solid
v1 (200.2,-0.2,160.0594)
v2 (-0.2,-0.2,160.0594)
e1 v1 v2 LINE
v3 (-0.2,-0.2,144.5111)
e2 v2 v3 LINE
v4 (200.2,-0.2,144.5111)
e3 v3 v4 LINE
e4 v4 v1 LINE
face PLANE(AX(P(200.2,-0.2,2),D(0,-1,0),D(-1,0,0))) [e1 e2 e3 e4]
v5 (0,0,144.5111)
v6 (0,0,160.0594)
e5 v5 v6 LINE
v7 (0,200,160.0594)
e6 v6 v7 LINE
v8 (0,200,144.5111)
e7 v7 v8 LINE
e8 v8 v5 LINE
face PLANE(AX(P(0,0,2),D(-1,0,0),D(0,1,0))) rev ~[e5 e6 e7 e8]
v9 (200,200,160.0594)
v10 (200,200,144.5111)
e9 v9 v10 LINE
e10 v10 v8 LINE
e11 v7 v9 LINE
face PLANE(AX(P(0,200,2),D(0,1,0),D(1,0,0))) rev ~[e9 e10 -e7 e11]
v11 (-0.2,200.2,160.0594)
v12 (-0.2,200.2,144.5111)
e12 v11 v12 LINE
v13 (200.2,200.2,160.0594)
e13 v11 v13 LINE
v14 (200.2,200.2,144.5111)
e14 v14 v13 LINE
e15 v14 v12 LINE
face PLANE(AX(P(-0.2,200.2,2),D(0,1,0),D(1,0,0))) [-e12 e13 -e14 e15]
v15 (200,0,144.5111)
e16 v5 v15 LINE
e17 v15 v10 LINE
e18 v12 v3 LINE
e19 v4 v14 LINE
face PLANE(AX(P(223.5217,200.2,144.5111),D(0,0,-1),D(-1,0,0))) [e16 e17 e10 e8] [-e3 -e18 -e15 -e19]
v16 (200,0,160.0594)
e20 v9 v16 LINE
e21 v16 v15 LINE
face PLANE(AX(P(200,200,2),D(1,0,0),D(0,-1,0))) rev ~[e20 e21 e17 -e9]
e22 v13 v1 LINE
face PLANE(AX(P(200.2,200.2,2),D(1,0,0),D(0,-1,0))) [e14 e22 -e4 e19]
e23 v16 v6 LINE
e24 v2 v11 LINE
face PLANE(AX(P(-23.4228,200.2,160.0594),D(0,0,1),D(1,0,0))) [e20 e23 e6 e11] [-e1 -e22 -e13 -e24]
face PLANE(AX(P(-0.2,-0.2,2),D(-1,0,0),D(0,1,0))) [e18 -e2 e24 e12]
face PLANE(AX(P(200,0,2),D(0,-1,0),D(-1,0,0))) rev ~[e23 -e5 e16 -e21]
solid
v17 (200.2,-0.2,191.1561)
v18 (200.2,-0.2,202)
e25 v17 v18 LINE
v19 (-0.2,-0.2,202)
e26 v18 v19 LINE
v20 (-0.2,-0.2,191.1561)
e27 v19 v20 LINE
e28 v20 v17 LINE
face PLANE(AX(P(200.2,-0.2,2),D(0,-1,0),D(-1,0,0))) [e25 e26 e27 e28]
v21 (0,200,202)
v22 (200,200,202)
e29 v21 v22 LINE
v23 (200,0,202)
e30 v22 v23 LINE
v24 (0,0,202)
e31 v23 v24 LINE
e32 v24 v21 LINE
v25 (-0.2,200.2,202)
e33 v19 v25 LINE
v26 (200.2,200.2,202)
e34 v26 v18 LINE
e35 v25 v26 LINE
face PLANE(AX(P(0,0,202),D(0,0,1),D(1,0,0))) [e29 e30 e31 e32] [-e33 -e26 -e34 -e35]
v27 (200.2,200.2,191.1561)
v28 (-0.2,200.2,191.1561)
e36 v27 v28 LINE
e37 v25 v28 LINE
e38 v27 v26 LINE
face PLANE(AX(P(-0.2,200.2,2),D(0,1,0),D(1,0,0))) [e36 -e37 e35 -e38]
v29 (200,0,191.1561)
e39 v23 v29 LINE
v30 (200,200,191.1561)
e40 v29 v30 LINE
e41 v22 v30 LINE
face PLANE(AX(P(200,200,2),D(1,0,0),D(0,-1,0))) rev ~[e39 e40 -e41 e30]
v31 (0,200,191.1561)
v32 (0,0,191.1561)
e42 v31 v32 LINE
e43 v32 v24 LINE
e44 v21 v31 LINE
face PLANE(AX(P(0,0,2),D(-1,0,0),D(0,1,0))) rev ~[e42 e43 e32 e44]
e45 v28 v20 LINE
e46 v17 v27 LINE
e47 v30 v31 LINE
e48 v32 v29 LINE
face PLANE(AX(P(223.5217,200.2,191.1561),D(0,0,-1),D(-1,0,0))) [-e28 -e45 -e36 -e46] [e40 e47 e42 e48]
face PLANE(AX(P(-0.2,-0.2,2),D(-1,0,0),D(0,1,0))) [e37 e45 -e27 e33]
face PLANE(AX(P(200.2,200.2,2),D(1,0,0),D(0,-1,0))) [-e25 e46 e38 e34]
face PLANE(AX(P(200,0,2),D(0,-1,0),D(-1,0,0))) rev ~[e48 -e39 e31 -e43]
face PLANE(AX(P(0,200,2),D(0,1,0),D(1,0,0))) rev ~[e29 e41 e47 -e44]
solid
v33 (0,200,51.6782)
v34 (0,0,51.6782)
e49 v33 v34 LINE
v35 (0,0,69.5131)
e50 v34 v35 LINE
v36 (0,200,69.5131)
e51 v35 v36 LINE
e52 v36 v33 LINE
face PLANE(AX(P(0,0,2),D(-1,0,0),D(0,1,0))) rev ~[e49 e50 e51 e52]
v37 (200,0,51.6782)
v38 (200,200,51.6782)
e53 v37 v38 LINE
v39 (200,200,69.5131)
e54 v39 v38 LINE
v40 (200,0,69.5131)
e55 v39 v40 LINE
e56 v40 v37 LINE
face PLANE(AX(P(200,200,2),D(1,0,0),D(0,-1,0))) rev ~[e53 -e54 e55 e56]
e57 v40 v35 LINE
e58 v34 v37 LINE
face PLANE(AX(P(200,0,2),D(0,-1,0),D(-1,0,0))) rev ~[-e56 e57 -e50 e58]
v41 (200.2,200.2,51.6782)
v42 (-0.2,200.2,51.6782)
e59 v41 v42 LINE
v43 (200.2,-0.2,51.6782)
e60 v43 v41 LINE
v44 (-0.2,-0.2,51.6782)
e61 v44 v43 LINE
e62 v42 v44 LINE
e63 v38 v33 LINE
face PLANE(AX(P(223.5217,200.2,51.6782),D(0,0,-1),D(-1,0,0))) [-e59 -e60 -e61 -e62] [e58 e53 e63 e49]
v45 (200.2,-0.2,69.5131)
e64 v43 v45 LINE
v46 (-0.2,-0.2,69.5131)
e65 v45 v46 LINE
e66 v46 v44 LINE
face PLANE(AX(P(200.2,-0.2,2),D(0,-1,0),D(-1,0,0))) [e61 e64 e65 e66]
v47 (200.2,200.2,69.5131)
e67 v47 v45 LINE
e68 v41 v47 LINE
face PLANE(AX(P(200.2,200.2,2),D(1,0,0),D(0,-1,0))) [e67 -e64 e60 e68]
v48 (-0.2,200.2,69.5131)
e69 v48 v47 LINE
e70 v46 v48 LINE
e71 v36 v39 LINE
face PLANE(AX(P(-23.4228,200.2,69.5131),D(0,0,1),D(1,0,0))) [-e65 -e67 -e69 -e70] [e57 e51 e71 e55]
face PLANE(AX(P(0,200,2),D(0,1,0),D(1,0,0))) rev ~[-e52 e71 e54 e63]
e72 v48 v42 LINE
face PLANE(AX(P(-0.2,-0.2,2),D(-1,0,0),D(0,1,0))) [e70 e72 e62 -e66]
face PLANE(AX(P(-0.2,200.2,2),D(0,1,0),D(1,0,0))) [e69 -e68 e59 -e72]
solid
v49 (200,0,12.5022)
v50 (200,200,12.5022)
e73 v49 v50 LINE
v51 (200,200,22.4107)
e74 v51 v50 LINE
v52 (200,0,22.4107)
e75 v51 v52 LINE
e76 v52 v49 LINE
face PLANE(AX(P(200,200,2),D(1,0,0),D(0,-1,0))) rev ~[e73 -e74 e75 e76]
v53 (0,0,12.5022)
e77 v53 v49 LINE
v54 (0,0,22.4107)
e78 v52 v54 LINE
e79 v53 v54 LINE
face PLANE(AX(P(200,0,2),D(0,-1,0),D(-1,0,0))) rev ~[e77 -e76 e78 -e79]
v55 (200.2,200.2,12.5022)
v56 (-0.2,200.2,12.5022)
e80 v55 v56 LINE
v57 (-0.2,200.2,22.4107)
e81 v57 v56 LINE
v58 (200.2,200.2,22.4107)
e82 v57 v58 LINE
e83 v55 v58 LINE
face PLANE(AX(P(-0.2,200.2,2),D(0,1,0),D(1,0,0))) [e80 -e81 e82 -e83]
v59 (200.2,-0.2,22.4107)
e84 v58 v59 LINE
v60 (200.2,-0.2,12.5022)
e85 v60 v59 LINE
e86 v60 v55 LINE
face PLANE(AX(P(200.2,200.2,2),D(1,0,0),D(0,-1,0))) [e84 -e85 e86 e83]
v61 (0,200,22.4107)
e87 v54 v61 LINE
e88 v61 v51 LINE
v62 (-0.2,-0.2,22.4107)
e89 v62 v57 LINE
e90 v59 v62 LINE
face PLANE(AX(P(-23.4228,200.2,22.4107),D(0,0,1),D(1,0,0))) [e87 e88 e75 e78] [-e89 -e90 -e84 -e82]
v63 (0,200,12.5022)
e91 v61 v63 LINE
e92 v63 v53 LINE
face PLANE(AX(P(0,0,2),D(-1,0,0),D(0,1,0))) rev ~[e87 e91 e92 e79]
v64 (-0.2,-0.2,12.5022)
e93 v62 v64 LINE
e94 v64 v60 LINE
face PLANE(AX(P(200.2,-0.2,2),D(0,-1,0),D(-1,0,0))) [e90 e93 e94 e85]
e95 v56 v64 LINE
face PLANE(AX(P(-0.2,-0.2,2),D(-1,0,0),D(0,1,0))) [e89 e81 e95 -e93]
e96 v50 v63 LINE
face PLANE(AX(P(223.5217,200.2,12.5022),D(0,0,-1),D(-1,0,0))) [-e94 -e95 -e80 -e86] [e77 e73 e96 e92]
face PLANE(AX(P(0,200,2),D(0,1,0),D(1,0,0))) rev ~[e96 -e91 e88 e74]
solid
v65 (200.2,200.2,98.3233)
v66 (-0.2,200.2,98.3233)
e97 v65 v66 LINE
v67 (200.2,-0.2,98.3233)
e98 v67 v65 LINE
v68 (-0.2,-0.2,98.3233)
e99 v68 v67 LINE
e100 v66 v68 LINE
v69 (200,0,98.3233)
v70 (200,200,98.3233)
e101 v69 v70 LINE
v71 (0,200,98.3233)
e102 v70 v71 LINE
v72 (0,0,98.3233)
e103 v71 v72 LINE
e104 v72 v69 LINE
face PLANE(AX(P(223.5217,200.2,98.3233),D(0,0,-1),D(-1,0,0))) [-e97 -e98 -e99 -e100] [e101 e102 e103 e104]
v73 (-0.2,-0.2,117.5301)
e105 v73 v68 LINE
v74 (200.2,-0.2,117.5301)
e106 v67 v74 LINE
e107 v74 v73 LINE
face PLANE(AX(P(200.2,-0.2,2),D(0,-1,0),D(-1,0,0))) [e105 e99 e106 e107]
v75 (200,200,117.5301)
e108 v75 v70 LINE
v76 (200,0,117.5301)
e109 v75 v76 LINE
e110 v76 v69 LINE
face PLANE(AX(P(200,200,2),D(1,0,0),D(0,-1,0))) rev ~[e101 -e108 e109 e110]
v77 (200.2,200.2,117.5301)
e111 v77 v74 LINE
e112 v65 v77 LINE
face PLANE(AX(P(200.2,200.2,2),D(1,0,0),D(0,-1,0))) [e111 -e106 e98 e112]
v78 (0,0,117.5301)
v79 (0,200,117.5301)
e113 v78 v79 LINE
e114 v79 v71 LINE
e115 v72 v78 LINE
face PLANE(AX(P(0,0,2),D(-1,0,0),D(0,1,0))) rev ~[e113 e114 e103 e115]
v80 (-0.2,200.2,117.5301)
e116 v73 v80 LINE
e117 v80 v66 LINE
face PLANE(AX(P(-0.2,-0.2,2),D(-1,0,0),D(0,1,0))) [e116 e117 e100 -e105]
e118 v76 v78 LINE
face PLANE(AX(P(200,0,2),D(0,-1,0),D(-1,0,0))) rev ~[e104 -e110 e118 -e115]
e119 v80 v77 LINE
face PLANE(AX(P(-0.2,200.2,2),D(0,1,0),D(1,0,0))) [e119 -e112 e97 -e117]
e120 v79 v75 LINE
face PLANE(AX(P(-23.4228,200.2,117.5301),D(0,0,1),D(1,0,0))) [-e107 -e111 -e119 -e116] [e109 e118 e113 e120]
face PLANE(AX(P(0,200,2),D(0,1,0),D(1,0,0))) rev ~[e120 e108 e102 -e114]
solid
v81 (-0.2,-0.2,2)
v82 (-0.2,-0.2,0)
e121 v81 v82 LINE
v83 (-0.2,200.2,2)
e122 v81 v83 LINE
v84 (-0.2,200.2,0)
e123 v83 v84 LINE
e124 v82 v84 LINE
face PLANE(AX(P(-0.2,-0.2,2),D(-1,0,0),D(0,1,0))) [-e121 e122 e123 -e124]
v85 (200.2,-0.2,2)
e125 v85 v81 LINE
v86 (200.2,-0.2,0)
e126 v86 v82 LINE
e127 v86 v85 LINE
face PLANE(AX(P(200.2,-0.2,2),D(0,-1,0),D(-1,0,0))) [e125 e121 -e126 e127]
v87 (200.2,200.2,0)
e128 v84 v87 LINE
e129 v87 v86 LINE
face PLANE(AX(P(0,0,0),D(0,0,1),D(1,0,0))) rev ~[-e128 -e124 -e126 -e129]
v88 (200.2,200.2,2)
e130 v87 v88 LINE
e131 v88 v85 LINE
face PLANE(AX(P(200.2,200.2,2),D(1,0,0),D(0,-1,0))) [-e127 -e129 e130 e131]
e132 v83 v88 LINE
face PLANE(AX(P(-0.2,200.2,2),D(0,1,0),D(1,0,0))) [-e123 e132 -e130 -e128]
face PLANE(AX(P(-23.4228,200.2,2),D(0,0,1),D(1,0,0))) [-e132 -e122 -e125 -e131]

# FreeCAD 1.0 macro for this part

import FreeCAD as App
import Part
import Sketcher
Q = App.Units.Quantity

doc = App.newDocument("Part")
body = doc.addObject("PartDesign::Body", "Body")
body.AllowCompound = True

sketch1 = doc.addObject("Sketcher::SketchObject", "Sketch")
body.addObject(sketch1)
sketch1.AttachmentSupport = (doc.XY_Plane, [""])
sketch1.MapMode = "FlatFace"
sketch1.addGeometry([
    Part.LineSegment(App.Vector(0, 200, 0), App.Vector(0, 0, 0)),
    Part.LineSegment(App.Vector(0, 0, 0), App.Vector(200, 0, 0)),
    Part.LineSegment(App.Vector(200, 0, 0), App.Vector(200, 200, 0)),
    Part.LineSegment(App.Vector(200, 200, 0), App.Vector(0, 200, 0)),
], False)
sketch1.addConstraint([
    Sketcher.Constraint("Coincident", 0, 2, 1, 1),
    Sketcher.Constraint("Coincident", 1, 2, 2, 1),
    Sketcher.Constraint("Coincident", 2, 2, 3, 1),
    Sketcher.Constraint("Coincident", 3, 2, 0, 1),
    Sketcher.Constraint("Vertical", 0),
    Sketcher.Constraint("Horizontal", 1),
    Sketcher.Constraint("Vertical", 2),
    Sketcher.Constraint("Horizontal", 3),
    Sketcher.Constraint("Coincident", 0, 2, -1, 1),
    Sketcher.Constraint("Equal", 3, 0),
    Sketcher.Constraint("DistanceX", 1, 1, 1, 2, Q("200 mm")),
])
pad1 = doc.addObject("PartDesign::Pad", "Pad")
body.addObject(pad1)
pad1.Profile = sketch1
pad1.Length = 2

sketch2 = doc.addObject("Sketcher::SketchObject", "Sketch001")
body.addObject(sketch2)
sketch2.AttachmentSupport = (doc.XY_Plane, [""])
sketch2.MapMode = "FlatFace"
sketch2.AttachmentOffset = App.Placement(App.Vector(0, 0, 2), App.Rotation())
sketch2.addGeometry([
    Part.LineSegment(App.Vector(0, 0, 0), App.Vector(200, 0, 0)),
    Part.LineSegment(App.Vector(200, 0, 0), App.Vector(200, 200, 0)),
    Part.LineSegment(App.Vector(200, 200, 0), App.Vector(0, 200, 0)),
    Part.LineSegment(App.Vector(0, 200, 0), App.Vector(0, 0, 0)),
    Part.LineSegment(App.Vector(200, 0, 0), App.Vector(0, 0, 0)),
    Part.LineSegment(App.Vector(0, 0, 0), App.Vector(0, 200, 0)),
    Part.LineSegment(App.Vector(0, 200, 0), App.Vector(200, 200, 0)),
    Part.LineSegment(App.Vector(200, 200, 0), App.Vector(200, 0, 0)),
], False)
sketch2.addConstraint([
    Sketcher.Constraint("Coincident", 0, 2, 1, 1),
    Sketcher.Constraint("Coincident", 1, 2, 2, 1),
    Sketcher.Constraint("Coincident", 2, 2, 3, 1),
    Sketcher.Constraint("Coincident", 3, 2, 0, 1),
    Sketcher.Constraint("Coincident", 4, 2, 5, 1),
    Sketcher.Constraint("Coincident", 5, 2, 6, 1),
    Sketcher.Constraint("Coincident", 6, 2, 7, 1),
    Sketcher.Constraint("Coincident", 7, 2, 4, 1),
    Sketcher.Constraint("Horizontal", 0),
    Sketcher.Constraint("Vertical", 1),
    Sketcher.Constraint("Horizontal", 2),
    Sketcher.Constraint("Vertical", 3),
    Sketcher.Constraint("Horizontal", 4),
    Sketcher.Constraint("Vertical", 5),
    Sketcher.Constraint("Horizontal", 6),
    Sketcher.Constraint("Vertical", 7),
    Sketcher.Constraint("Coincident", 4, 2, -1, 1),
    Sketcher.Constraint("Equal", 2, 1),
    Sketcher.Constraint("Equal", 6, 5),
    Sketcher.Constraint("DistanceY", 0, 2, -1, 1, Q("0.2 mm")),
    Sketcher.Constraint("DistanceX", 2, 2, -1, 1, Q("0.2 mm")),
    Sketcher.Constraint("DistanceY", 5, 2, 2, 2, Q("0.2 mm")),
    Sketcher.Constraint("DistanceX", 4, 2, 4, 1, Q("200 mm")),
])
pad2 = doc.addObject("PartDesign::Pad", "Pad001")
body.addObject(pad2)
pad2.Profile = sketch2
pad2.Type = "TwoLengths"
pad2.Length = 200
pad2.Length2 = 2

sketch3 = doc.addObject("Sketcher::SketchObject", "Sketch002")
body.addObject(sketch3)
sketch3.AttachmentSupport = (doc.XZ_Plane, [""])
sketch3.MapMode = "FlatFace"
sketch3.AttachmentOffset = App.Placement(App.Vector(0, 0, -200.2), App.Rotation())
sketch3.addGeometry([
    Part.LineSegment(App.Vector(-23, 191, 0), App.Vector(224, 191, 0)),
    Part.LineSegment(App.Vector(224, 191, 0), App.Vector(224, 160, 0)),
    Part.LineSegment(App.Vector(224, 160, 0), App.Vector(-23, 160, 0)),
    Part.LineSegment(App.Vector(-23, 160, 0), App.Vector(-23, 191, 0)),
    Part.LineSegment(App.Vector(-23, 145, 0), App.Vector(224, 145, 0)),
    Part.LineSegment(App.Vector(224, 145, 0), App.Vector(224, 118, 0)),
    Part.LineSegment(App.Vector(224, 118, 0), App.Vector(-23, 118, 0)),
    Part.LineSegment(App.Vector(-23, 118, 0), App.Vector(-23, 145, 0)),
    Part.LineSegment(App.Vector(-23, 98, 0), App.Vector(224, 98, 0)),
    Part.LineSegment(App.Vector(224, 98, 0), App.Vector(224, 70, 0)),
    Part.LineSegment(App.Vector(224, 70, 0), App.Vector(-23, 70, 0)),
    Part.LineSegment(App.Vector(-23, 70, 0), App.Vector(-23, 98, 0)),
    Part.LineSegment(App.Vector(-23, 52, 0), App.Vector(224, 52, 0)),
    Part.LineSegment(App.Vector(224, 52, 0), App.Vector(224, 22, 0)),
    Part.LineSegment(App.Vector(224, 22, 0), App.Vector(-23, 22, 0)),
    Part.LineSegment(App.Vector(-23, 22, 0), App.Vector(-23, 52, 0)),
    Part.LineSegment(App.Vector(-23, 13, 0), App.Vector(224, 13, 0)),
    Part.LineSegment(App.Vector(224, 13, 0), App.Vector(224, 2, 0)),
    Part.LineSegment(App.Vector(224, 2, 0), App.Vector(-23, 2, 0)),
    Part.LineSegment(App.Vector(-23, 2, 0), App.Vector(-23, 13, 0)),
], False)
sketch3.addConstraint([
    Sketcher.Constraint("Coincident", 0, 2, 1, 1),
    Sketcher.Constraint("Coincident", 1, 2, 2, 1),
    Sketcher.Constraint("Coincident", 2, 2, 3, 1),
    Sketcher.Constraint("Coincident", 3, 2, 0, 1),
    Sketcher.Constraint("Coincident", 4, 2, 5, 1),
    Sketcher.Constraint("Coincident", 5, 2, 6, 1),
    Sketcher.Constraint("Coincident", 6, 2, 7, 1),
    Sketcher.Constraint("Coincident", 7, 2, 4, 1),
    Sketcher.Constraint("Coincident", 8, 2, 9, 1),
    Sketcher.Constraint("Coincident", 9, 2, 10, 1),
    Sketcher.Constraint("Coincident", 10, 2, 11, 1),
    Sketcher.Constraint("Coincident", 11, 2, 8, 1),
    Sketcher.Constraint("Coincident", 12, 2, 13, 1),
    Sketcher.Constraint("Coincident", 13, 2, 14, 1),
    Sketcher.Constraint("Coincident", 14, 2, 15, 1),
    Sketcher.Constraint("Coincident", 15, 2, 12, 1),
    Sketcher.Constraint("Coincident", 16, 2, 17, 1),
    Sketcher.Constraint("Coincident", 17, 2, 18, 1),
    Sketcher.Constraint("Coincident", 18, 2, 19, 1),
    Sketcher.Constraint("Coincident", 19, 2, 16, 1),
    Sketcher.Constraint("Horizontal", 0),
    Sketcher.Constraint("Vertical", 1),
    Sketcher.Constraint("Horizontal", 2),
    Sketcher.Constraint("Vertical", 3),
    Sketcher.Constraint("Horizontal", 4),
    Sketcher.Constraint("Vertical", 5),
    Sketcher.Constraint("Horizontal", 6),
    Sketcher.Constraint("Vertical", 7),
    Sketcher.Constraint("Horizontal", 8),
    Sketcher.Constraint("Vertical", 9),
    Sketcher.Constraint("Horizontal", 10),
    Sketcher.Constraint("Vertical", 11),
    Sketcher.Constraint("Horizontal", 12),
    Sketcher.Constraint("Vertical", 13),
    Sketcher.Constraint("Horizontal", 14),
    Sketcher.Constraint("Vertical", 15),
    Sketcher.Constraint("Horizontal", 16),
    Sketcher.Constraint("Vertical", 17),
    Sketcher.Constraint("Horizontal", 18),
    Sketcher.Constraint("Vertical", 19),
    Sketcher.Constraint("Vertical", 1, 2, 4, 2),
    Sketcher.Constraint("Vertical", 3, 2, 6, 2),
    Sketcher.Constraint("Vertical", 5, 2, 8, 2),
    Sketcher.Constraint("Vertical", 7, 2, 10, 2),
    Sketcher.Constraint("Vertical", 9, 2, 12, 2),
    Sketcher.Constraint("Vertical", 11, 2, 14, 2),
    Sketcher.Constraint("Vertical", 13, 2, 16, 2),
    Sketcher.Constraint("Vertical", 15, 2, 18, 2),
    Sketcher.Constraint("DistanceY", -1, 1, 17, 2, Q("2 mm")),
    Sketcher.Constraint("DistanceY", 5, 2, 5, 1, Q("26.981 mm")),
    Sketcher.Constraint("DistanceY", -1, 1, 5, 2, Q("117.53 mm")),
    Sketcher.Constraint("DistanceX", 0, 1, 0, 2, Q("246.9445 mm")),
    Sketcher.Constraint("DistanceY", 1, 2, 1, 1, Q("31.0967 mm")),
    Sketcher.Constraint("DistanceY", 9, 2, 9, 1, Q("28.8102 mm")),
    Sketcher.Constraint("DistanceY", 13, 2, 13, 1, Q("29.2675 mm")),
    Sketcher.Constraint("DistanceY", 17, 2, 17, 1, Q("10.5022 mm")),
    Sketcher.Constraint("DistanceY", -1, 1, 0, 2, Q("191.156 mm")),
    Sketcher.Constraint("DistanceY", -1, 1, 9, 2, Q("69.513 mm")),
    Sketcher.Constraint("DistanceY", 12, 2, 9, 2, Q("17.835 mm")),
    Sketcher.Constraint("DistanceX", -1, 1, 0, 2, Q("223.5217 mm")),
])
pocket1 = doc.addObject("PartDesign::Pocket", "Pocket")
body.addObject(pocket1)
pocket1.Profile = sketch3
pocket1.Type = "ThroughAll"
pocket1.Reversed = True

doc.recompute()
